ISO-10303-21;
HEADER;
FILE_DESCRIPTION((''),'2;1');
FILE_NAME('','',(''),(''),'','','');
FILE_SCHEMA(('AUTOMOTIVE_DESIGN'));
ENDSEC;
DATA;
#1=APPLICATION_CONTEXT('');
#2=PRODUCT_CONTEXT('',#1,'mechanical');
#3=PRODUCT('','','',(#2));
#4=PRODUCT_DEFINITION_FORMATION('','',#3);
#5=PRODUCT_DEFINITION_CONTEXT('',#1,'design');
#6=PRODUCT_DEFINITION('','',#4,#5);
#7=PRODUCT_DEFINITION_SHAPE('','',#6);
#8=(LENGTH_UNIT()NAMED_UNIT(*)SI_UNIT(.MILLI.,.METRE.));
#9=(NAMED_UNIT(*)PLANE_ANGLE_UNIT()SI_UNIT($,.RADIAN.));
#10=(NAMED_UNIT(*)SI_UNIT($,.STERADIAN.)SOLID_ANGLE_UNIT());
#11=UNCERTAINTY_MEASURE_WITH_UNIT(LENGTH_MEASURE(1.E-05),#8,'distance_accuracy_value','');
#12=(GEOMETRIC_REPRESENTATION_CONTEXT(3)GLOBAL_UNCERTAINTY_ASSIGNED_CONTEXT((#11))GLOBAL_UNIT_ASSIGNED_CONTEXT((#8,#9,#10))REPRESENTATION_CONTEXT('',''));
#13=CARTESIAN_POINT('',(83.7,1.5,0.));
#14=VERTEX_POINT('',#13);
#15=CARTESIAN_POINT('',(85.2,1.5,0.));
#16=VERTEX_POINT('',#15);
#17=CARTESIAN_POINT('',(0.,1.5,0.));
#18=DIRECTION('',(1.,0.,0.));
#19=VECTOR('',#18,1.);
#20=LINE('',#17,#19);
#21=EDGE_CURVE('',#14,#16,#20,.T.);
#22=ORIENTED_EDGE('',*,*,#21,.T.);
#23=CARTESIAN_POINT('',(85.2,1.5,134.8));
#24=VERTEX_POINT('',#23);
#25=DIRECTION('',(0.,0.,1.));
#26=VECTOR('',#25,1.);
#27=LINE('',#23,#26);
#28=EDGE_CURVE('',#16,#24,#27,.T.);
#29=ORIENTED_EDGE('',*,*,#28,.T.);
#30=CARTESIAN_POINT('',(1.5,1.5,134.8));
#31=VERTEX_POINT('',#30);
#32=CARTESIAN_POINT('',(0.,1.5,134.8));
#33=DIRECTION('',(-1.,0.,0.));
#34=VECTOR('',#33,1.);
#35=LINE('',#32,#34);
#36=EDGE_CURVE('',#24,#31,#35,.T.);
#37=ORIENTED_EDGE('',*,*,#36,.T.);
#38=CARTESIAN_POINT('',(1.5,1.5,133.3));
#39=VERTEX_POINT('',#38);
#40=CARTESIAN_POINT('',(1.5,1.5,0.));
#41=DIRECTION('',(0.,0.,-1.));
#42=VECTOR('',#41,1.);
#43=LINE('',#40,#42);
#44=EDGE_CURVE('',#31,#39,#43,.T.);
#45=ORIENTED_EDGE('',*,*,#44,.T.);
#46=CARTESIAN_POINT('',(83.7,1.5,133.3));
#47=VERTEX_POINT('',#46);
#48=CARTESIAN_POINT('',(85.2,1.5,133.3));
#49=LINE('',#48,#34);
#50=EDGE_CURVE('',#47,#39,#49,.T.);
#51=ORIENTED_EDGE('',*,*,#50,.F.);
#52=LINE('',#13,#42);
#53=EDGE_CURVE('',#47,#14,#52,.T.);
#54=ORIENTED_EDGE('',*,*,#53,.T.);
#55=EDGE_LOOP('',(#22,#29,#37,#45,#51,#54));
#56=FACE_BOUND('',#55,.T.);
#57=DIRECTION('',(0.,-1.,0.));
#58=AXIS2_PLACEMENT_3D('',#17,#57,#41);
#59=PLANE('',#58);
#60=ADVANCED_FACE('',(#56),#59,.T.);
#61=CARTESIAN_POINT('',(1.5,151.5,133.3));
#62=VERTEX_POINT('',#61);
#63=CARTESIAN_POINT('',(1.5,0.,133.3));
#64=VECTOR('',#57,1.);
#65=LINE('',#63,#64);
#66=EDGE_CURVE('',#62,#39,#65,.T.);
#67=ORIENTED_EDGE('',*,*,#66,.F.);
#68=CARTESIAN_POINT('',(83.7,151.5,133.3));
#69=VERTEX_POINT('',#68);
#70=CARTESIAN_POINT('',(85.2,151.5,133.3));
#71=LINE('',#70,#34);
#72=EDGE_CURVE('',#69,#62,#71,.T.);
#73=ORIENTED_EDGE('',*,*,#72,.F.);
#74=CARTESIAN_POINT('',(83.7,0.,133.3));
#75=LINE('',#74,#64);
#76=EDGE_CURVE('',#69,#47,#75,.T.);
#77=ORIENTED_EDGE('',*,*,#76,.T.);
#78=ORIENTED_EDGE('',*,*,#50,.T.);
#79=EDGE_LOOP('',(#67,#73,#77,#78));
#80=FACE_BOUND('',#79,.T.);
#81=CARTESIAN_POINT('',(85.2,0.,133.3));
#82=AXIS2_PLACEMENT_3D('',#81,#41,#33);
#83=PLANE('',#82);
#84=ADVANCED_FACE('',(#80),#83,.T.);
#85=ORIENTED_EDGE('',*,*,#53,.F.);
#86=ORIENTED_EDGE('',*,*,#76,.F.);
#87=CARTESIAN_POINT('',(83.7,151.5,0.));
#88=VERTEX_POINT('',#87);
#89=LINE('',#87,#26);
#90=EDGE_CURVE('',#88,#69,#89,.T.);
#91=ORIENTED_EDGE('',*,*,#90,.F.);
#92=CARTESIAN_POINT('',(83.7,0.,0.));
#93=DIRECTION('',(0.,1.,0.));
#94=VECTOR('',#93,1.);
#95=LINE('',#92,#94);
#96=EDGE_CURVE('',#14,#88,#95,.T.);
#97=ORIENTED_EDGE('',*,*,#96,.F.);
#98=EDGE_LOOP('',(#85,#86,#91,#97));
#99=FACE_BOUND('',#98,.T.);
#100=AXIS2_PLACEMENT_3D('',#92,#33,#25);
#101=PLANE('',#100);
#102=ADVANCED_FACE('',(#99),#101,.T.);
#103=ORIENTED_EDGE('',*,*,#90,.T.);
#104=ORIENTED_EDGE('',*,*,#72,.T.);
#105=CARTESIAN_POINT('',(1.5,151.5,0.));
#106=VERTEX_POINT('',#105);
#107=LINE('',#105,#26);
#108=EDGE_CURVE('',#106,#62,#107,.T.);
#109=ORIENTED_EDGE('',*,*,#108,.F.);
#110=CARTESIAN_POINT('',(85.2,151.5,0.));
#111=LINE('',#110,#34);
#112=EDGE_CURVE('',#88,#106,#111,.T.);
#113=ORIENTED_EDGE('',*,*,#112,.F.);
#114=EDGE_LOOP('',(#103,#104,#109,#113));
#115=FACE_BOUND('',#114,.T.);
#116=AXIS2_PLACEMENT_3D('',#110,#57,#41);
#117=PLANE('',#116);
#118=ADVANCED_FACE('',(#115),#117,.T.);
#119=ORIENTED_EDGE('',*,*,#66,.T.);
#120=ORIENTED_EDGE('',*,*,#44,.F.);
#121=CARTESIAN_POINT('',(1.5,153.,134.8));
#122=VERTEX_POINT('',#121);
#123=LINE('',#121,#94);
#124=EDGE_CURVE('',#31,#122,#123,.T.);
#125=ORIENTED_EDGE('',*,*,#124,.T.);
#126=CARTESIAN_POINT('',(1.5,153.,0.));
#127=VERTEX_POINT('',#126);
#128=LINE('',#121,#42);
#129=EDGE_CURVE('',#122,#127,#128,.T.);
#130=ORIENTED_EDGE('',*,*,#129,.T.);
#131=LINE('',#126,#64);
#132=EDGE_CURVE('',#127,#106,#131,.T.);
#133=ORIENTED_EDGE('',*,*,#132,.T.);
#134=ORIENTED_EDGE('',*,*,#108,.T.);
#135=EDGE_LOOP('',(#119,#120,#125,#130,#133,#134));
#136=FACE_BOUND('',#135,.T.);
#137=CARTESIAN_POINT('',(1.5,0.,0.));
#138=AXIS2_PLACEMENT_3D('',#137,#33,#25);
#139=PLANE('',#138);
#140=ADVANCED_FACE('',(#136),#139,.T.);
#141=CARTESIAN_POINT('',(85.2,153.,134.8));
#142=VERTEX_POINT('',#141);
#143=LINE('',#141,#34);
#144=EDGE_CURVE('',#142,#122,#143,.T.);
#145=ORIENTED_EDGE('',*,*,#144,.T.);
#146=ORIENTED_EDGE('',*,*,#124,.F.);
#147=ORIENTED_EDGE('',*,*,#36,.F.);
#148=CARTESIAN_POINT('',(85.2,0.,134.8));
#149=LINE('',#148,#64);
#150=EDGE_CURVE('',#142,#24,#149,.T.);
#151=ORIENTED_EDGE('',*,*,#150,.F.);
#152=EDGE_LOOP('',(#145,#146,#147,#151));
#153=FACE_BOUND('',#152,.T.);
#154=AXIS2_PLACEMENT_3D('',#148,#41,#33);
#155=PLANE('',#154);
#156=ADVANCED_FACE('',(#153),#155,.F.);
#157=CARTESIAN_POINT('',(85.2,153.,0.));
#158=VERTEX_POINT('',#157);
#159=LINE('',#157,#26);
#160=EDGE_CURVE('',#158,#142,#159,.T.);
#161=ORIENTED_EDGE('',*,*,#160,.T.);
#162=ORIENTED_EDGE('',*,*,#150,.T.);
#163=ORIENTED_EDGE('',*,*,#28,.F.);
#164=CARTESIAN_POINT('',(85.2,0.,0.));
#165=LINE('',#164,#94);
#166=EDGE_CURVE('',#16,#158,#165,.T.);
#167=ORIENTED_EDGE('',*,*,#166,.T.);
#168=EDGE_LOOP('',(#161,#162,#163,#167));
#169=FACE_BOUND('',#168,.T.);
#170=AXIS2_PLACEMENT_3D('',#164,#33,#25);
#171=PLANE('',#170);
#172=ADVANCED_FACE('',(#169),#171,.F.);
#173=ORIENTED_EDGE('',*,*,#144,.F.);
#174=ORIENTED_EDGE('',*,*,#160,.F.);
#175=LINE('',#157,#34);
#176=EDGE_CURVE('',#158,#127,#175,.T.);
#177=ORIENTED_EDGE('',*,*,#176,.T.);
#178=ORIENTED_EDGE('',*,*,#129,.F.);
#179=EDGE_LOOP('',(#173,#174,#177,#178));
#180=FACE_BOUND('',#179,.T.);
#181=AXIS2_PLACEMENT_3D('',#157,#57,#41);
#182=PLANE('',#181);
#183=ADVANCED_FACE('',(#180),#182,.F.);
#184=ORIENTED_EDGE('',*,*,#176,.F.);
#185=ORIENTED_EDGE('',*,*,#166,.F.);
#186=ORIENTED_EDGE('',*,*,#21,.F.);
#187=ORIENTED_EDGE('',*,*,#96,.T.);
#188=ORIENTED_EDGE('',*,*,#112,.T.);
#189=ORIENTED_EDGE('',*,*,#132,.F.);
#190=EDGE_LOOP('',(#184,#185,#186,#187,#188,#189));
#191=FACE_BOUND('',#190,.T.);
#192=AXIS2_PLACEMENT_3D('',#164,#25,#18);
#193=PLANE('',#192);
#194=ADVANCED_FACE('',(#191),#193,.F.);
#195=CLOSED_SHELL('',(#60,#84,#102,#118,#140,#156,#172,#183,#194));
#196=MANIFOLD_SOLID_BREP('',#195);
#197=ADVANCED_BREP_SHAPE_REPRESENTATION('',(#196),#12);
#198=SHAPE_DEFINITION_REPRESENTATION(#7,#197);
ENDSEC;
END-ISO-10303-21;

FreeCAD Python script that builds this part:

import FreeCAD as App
import Part
import Sketcher
from FreeCAD import Vector
Q = App.Units.Quantity


def faces_at(feature, points):
    """Names of the faces that lie closest to the given points."""
    faces = feature.Shape.Faces
    near = lambda p: min(range(len(faces)), key=lambda i: faces[i].distToShape(Part.Vertex(*p))[0])
    return sorted({f"Face{near(p) + 1}" for p in points})


def add_polygon(sketch, points):
    """Adds a closed chain of lines whose ends are joined by coincident constraints."""
    first, n = sketch.GeometryCount, len(points)
    for a, b in zip(points, points[1:] + points[:1]):
        sketch.addGeometry(Part.LineSegment(App.Vector(*a, 0), App.Vector(*b, 0)), False)
    for i in range(n):
        sketch.addConstraint(Sketcher.Constraint("Coincident", first + i, 2, first + (i + 1) % n, 1))

doc = App.newDocument("Part")
body = doc.addObject("PartDesign::Body", "Body")

sketch1 = body.newObject("Sketcher::SketchObject", "Sketch")
sketch1.AttachmentSupport = (doc.getObject("YZ_Plane"), [""])
sketch1.MapMode = "FlatFace"
add_polygon(sketch1, [(0, 134.8), (0, 0), (153, 0), (153, 134.8)])
sketch1.addConstraint([
    Sketcher.Constraint("Vertical", 0),
    Sketcher.Constraint("Horizontal", 1),
    Sketcher.Constraint("Vertical", 2),
    Sketcher.Constraint("Horizontal", 3),
    Sketcher.Constraint("Coincident", 0, 2, -1, 1),
    Sketcher.Constraint("DistanceX", 1, 1, 1, 2, Q("153 mm")),
    Sketcher.Constraint("DistanceY", 0, 2, 0, 1, Q("134.8 mm")),
])
pad1 = body.newObject("PartDesign::Pad", "Pad")
pad1.Profile = sketch1
pad1.Length = 85.2
doc.recompute()

thickness = body.newObject("PartDesign::Thickness", "Thickness")
thickness.Base = (pad1, faces_at(pad1, [(42.6, 76.5, 0)]))
thickness.Value = 1.5
thickness.Reversed = True
thickness.Join = "Intersection"

sketch2 = body.newObject("Sketcher::SketchObject", "Sketch001")
sketch2.AttachmentSupport = (doc.getObject("XZ_Plane"), [""])
sketch2.MapMode = "FlatFace"
add_polygon(sketch2, [(0, 134.8), (0, 0), (85.2, 0), (85.2, 134.8)])
sketch2.addConstraint([
    Sketcher.Constraint("Vertical", 0),
    Sketcher.Constraint("Horizontal", 1),
    Sketcher.Constraint("Vertical", 2),
    Sketcher.Constraint("Horizontal", 3),
    Sketcher.Constraint("Coincident", 0, 2, -1, 1),
    Sketcher.Constraint("DistanceX", 1, 1, 1, 2, Q("85.2 mm")),
    Sketcher.Constraint("DistanceY", 0, 2, 0, 1, Q("134.8 mm")),
])
pocket1 = body.newObject("PartDesign::Pocket", "Pocket")
pocket1.Profile = sketch2
pocket1.Length = 1.5

sketch3 = body.newObject("Sketcher::SketchObject", "Sketch002")
sketch3.AttachmentSupport = (doc.getObject("YZ_Plane"), [""])
sketch3.MapMode = "FlatFace"
add_polygon(sketch3, [(153, 134.8), (153, 0), (1.5, 0), (1.5, 134.8)])
sketch3.addConstraint([
    Sketcher.Constraint("Vertical", 0),
    Sketcher.Constraint("Horizontal", 1),
    Sketcher.Constraint("Vertical", 2),
    Sketcher.Constraint("Horizontal", 3),
    Sketcher.Constraint("PointOnObject", 0, 2, -1),
    Sketcher.Constraint("DistanceX", 1, 2, 1, 1, Q("151.5 mm")),
    Sketcher.Constraint("DistanceY", 0, 2, 0, 1, Q("134.8 mm")),
    Sketcher.Constraint("DistanceX", -1, 1, 0, 2, Q("153 mm")),
])
pocket2 = body.newObject("PartDesign::Pocket", "Pocket001")
pocket2.Profile = sketch3
pocket2.Length = 1.5
pocket2.Reversed = True

doc.recompute()
